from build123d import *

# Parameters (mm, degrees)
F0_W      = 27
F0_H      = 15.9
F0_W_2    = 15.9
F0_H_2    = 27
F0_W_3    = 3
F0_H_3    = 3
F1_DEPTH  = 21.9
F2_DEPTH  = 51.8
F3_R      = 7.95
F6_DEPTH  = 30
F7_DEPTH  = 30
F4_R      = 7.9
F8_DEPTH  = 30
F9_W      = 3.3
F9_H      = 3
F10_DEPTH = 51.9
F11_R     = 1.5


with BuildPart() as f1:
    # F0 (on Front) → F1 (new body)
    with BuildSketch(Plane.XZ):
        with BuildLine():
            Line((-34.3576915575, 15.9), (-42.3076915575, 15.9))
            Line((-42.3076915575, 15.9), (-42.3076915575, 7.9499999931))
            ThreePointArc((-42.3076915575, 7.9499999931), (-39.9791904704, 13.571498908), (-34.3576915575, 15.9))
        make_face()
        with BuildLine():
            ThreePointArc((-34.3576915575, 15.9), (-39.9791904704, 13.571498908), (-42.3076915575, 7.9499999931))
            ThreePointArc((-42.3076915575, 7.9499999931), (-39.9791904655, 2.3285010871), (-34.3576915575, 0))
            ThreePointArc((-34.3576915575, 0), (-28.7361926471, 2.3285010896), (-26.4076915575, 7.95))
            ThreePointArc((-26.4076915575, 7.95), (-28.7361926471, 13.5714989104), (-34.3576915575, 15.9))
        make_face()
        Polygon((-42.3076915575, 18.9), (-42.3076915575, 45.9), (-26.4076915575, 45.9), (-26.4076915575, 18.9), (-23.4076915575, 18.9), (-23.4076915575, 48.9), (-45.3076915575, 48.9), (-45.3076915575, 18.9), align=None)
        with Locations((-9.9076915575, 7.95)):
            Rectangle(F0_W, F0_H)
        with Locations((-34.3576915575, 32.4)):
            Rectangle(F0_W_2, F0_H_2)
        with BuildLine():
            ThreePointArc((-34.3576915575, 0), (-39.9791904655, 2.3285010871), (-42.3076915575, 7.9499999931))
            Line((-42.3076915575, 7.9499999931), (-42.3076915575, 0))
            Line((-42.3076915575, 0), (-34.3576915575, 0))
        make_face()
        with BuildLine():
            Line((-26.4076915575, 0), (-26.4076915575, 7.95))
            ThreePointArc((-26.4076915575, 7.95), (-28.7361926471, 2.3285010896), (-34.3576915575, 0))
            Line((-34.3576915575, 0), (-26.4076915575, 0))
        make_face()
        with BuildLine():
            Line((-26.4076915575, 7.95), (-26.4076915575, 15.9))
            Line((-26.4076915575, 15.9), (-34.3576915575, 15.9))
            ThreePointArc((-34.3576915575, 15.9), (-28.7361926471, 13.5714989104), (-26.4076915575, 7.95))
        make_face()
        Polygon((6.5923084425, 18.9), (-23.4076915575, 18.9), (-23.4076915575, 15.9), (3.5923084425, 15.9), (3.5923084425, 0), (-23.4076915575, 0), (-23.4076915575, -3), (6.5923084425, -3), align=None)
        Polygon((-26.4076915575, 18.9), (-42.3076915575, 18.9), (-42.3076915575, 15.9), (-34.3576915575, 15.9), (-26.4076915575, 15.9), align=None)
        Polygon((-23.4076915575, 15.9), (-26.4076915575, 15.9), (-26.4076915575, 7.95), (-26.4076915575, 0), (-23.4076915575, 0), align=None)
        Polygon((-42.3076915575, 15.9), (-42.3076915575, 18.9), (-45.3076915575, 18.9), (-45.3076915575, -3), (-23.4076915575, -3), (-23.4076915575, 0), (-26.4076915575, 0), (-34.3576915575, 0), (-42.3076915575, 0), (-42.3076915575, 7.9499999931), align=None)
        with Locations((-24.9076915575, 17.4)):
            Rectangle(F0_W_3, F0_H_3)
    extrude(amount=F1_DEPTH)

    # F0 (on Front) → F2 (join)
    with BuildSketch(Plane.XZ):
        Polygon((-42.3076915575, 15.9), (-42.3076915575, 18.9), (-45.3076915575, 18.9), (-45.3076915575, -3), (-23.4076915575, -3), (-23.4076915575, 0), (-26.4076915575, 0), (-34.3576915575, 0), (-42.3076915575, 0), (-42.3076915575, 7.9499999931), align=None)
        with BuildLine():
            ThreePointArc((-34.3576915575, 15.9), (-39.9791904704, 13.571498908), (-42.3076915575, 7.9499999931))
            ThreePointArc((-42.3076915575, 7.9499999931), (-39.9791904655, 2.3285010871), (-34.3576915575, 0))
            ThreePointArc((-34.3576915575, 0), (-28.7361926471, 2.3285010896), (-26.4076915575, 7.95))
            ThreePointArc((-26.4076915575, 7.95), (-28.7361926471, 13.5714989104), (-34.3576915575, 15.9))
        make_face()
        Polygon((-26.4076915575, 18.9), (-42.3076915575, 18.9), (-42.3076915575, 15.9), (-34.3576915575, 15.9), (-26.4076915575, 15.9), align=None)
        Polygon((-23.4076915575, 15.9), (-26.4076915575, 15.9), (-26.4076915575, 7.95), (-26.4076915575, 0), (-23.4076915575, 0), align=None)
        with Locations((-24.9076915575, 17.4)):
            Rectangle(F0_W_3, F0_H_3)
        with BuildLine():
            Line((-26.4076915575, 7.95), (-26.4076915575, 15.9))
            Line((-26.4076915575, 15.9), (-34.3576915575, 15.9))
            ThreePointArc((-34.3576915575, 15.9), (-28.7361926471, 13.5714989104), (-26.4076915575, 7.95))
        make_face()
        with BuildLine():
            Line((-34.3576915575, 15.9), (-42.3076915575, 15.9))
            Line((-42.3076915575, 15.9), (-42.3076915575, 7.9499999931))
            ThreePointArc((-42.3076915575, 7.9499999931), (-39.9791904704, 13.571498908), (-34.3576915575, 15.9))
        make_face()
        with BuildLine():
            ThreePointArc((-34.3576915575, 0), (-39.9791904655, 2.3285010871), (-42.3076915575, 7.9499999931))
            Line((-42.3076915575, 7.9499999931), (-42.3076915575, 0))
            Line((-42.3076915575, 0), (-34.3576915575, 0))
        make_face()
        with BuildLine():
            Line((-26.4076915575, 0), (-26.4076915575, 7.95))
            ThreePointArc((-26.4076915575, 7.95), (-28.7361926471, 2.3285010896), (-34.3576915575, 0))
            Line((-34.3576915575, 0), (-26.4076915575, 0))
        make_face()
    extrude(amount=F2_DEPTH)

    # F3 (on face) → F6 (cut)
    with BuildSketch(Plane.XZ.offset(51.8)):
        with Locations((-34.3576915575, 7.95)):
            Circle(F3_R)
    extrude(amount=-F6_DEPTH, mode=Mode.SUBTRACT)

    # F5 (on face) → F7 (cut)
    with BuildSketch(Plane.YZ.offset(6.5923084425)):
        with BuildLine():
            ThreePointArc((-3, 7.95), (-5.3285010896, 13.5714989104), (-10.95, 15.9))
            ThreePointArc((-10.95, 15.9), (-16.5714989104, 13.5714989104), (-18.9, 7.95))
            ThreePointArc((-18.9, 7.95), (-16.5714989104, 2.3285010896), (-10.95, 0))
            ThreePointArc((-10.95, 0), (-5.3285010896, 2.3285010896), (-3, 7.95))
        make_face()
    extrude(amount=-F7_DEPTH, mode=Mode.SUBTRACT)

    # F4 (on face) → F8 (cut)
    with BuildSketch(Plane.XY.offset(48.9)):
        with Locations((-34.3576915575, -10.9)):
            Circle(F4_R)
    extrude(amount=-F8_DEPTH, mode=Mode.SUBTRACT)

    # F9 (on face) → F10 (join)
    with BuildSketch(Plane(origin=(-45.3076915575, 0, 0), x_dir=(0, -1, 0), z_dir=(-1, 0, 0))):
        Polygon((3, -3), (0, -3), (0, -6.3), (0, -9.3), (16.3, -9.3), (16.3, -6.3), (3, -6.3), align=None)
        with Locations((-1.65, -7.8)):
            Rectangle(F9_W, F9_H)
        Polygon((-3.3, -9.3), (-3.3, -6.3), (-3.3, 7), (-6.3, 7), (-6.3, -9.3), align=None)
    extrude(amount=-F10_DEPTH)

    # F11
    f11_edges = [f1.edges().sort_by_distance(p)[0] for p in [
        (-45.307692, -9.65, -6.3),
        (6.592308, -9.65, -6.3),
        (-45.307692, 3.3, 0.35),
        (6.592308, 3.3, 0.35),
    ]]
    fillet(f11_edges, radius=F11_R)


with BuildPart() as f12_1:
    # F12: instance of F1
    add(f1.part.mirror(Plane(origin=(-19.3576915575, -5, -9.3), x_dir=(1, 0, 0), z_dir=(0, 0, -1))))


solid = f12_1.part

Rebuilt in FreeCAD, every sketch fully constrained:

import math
import FreeCAD as App
import Part
import Sketcher

V = App.Vector
Q = App.Units.Quantity


def edges_at(feature, points):
    """Names of the edges that pass closest to the given points."""
    edges = feature.Shape.Edges
    near = lambda p: min(range(len(edges)), key=lambda i: edges[i].distToShape(Part.Vertex(*p))[0])
    return sorted({f"Edge{near(p) + 1}" for p in points})

doc = App.newDocument("Part")
body = doc.addObject("PartDesign::Body", "Body")

sketch1 = body.newObject("Sketcher::SketchObject", "Sketch")
sketch1.AttachmentSupport = (doc.getObject("XZ_Plane"), [""])
sketch1.MapMode = "FlatFace"
sketch1.addGeometry([
    Part.LineSegment(V(7, 19, 0), V(-23, 19, 0)),
    Part.LineSegment(V(-23, 19, 0), V(-23, 49, 0)),
    Part.LineSegment(V(-23, 49, 0), V(-45, 49, 0)),
    Part.LineSegment(V(-45, 49, 0), V(-45, -3, 0)),
    Part.LineSegment(V(-45, -3, 0), V(7, -3, 0)),
    Part.LineSegment(V(7, -3, 0), V(7, 19, 0)),
], False)
sketch1.addConstraint([
    Sketcher.Constraint("Coincident", 0, 2, 1, 1),
    Sketcher.Constraint("Coincident", 1, 2, 2, 1),
    Sketcher.Constraint("Coincident", 2, 2, 3, 1),
    Sketcher.Constraint("Coincident", 3, 2, 4, 1),
    Sketcher.Constraint("Coincident", 4, 2, 5, 1),
    Sketcher.Constraint("Coincident", 5, 2, 0, 1),
    Sketcher.Constraint("Horizontal", 0),
    Sketcher.Constraint("Vertical", 1),
    Sketcher.Constraint("Horizontal", 2),
    Sketcher.Constraint("Vertical", 3),
    Sketcher.Constraint("Horizontal", 4),
    Sketcher.Constraint("Vertical", 5),
    Sketcher.Constraint("Equal", 0, 1),
    Sketcher.Constraint("Equal", 4, 3),
    Sketcher.Constraint("DistanceX", 0, 2, 0, 1, Q("30 mm")),
    Sketcher.Constraint("DistanceX", 2, 2, 2, 1, Q("21.9 mm")),
    Sketcher.Constraint("DistanceY", 3, 2, -1, 1, Q("3 mm")),
    Sketcher.Constraint("DistanceX", 0, 2, -1, 1, Q("23.407692 mm")),
])
pad1 = body.newObject("PartDesign::Pad", "Pad")
pad1.Profile = sketch1
pad1.Length = 21.9

sketch2 = body.newObject("Sketcher::SketchObject", "Sketch001")
sketch2.AttachmentSupport = (doc.getObject("XZ_Plane"), [""])
sketch2.MapMode = "FlatFace"
sketch2.addGeometry([
    Part.LineSegment(V(-23, -3, 0), V(-23, 19, 0)),
    Part.LineSegment(V(-23, 19, 0), V(-45, 19, 0)),
    Part.LineSegment(V(-45, 19, 0), V(-45, -3, 0)),
    Part.LineSegment(V(-45, -3, 0), V(-23, -3, 0)),
], False)
sketch2.addConstraint([
    Sketcher.Constraint("Coincident", 0, 2, 1, 1),
    Sketcher.Constraint("Coincident", 1, 2, 2, 1),
    Sketcher.Constraint("Coincident", 2, 2, 3, 1),
    Sketcher.Constraint("Coincident", 3, 2, 0, 1),
    Sketcher.Constraint("Vertical", 0),
    Sketcher.Constraint("Horizontal", 1),
    Sketcher.Constraint("Vertical", 2),
    Sketcher.Constraint("Horizontal", 3),
    Sketcher.Constraint("Equal", 3, 0),
    Sketcher.Constraint("DistanceX", 1, 2, 1, 1, Q("21.9 mm")),
    Sketcher.Constraint("DistanceY", 2, 2, -1, 1, Q("3 mm")),
    Sketcher.Constraint("DistanceX", 0, 2, -1, 1, Q("23.407692 mm")),
])
pad2 = body.newObject("PartDesign::Pad", "Pad001")
pad2.Profile = sketch2
pad2.Length = 51.8

sketch3 = body.newObject("Sketcher::SketchObject", "Sketch002")
sketch3.AttachmentSupport = (doc.getObject("XZ_Plane"), [""])
sketch3.MapMode = "FlatFace"
sketch3.AttachmentOffset = App.Placement(V(0, 0, 51.8), App.Rotation())
sketch3.addGeometry(Part.Circle(V(-34, 8, 0), V(0, 0, 1), 8), False)
sketch3.addConstraint([
    Sketcher.Constraint("Diameter", 0, Q("15.9 mm")),
    Sketcher.Constraint("DistanceY", -1, 1, 0, 3, Q("7.95 mm")),
    Sketcher.Constraint("DistanceX", 0, 3, -1, 1, Q("34.357692 mm")),
])
pocket1 = body.newObject("PartDesign::Pocket", "Pocket")
pocket1.Profile = sketch3
pocket1.Length = 30

sketch4 = body.newObject("Sketcher::SketchObject", "Sketch003")
sketch4.AttachmentSupport = (doc.getObject("YZ_Plane"), [""])
sketch4.MapMode = "FlatFace"
sketch4.AttachmentOffset = App.Placement(V(0, 0, 6.592308), App.Rotation())
sketch4.addGeometry([
    Part.ArcOfCircle(Part.Circle(V(-11, 8, 0), V(0, 0, 1), 8), math.radians(0), math.radians(90)),
    Part.ArcOfCircle(Part.Circle(V(-11, 8, 0), V(0, 0, 1), 8), math.radians(90), math.radians(180)),
    Part.ArcOfCircle(Part.Circle(V(-11, 8, 0), V(0, 0, 1), 8), math.radians(180), math.radians(270)),
    Part.ArcOfCircle(Part.Circle(V(-11, 8, 0), V(0, 0, 1), 8), math.radians(-90), math.radians(0)),
], False)
sketch4.addConstraint([
    Sketcher.Constraint("Tangent", 0, 2, 1, 1),
    Sketcher.Constraint("Tangent", 1, 2, 2, 1),
    Sketcher.Constraint("Tangent", 2, 2, 3, 1),
    Sketcher.Constraint("Tangent", 3, 2, 0, 1),
    Sketcher.Constraint("Equal", 0, 1),
    Sketcher.Constraint("PointOnObject", 2, 2, -1),
    Sketcher.Constraint("Horizontal", 3, 3, 1, 2),
    Sketcher.Constraint("Horizontal", 1, 2, 3, 2),
    Sketcher.Constraint("Vertical", 3, 3, 0, 2),
    Sketcher.Constraint("Vertical", 0, 2, 2, 2),
    Sketcher.Constraint("Radius", 0, Q("7.95 mm")),
    Sketcher.Constraint("DistanceX", 3, 2, -1, 1, Q("3 mm")),
])
pocket2 = body.newObject("PartDesign::Pocket", "Pocket001")
pocket2.Profile = sketch4
pocket2.Length = 30

sketch5 = body.newObject("Sketcher::SketchObject", "Sketch004")
sketch5.AttachmentSupport = (doc.getObject("XY_Plane"), [""])
sketch5.MapMode = "FlatFace"
sketch5.AttachmentOffset = App.Placement(V(0, 0, 48.9), App.Rotation())
sketch5.addGeometry(Part.Circle(V(-34, -11, 0), V(0, 0, 1), 8), False)
sketch5.addConstraint([
    Sketcher.Constraint("Diameter", 0, Q("15.8 mm")),
    Sketcher.Constraint("DistanceY", 0, 3, -1, 1, Q("10.9 mm")),
    Sketcher.Constraint("DistanceX", 0, 3, -1, 1, Q("34.357692 mm")),
])
pocket3 = body.newObject("PartDesign::Pocket", "Pocket002")
pocket3.Profile = sketch5
pocket3.Length = 30

sketch6 = body.newObject("Sketcher::SketchObject", "Sketch005")
sketch6.AttachmentSupport = (doc.getObject("YZ_Plane"), [""])
sketch6.MapMode = "FlatFace"
sketch6.AttachmentOffset = App.Placement(V(0, 0, -45.307692), App.Rotation())
sketch6.addGeometry([
    Part.LineSegment(V(-3, -3, 0), V(0, -3, 0)),
    Part.LineSegment(V(0, -3, 0), V(0, -6.3, 0)),
    Part.LineSegment(V(0, -6.3, 0), V(3.3, -6.3, 0)),
    Part.LineSegment(V(3.3, -6.3, 0), V(3.3, 7, 0)),
    Part.LineSegment(V(3.3, 7, 0), V(6.3, 7, 0)),
    Part.LineSegment(V(6.3, 7, 0), V(6.3, -9.3, 0)),
    Part.LineSegment(V(6.3, -9.3, 0), V(-16.3, -9.3, 0)),
    Part.LineSegment(V(-16.3, -9.3, 0), V(-16.3, -6.3, 0)),
    Part.LineSegment(V(-16.3, -6.3, 0), V(-3, -6.3, 0)),
    Part.LineSegment(V(-3, -6.3, 0), V(-3, -3, 0)),
], False)
sketch6.addConstraint([
    Sketcher.Constraint("Coincident", 0, 2, 1, 1),
    Sketcher.Constraint("Coincident", 1, 2, 2, 1),
    Sketcher.Constraint("Coincident", 2, 2, 3, 1),
    Sketcher.Constraint("Coincident", 3, 2, 4, 1),
    Sketcher.Constraint("Coincident", 4, 2, 5, 1),
    Sketcher.Constraint("Coincident", 5, 2, 6, 1),
    Sketcher.Constraint("Coincident", 6, 2, 7, 1),
    Sketcher.Constraint("Coincident", 7, 2, 8, 1),
    Sketcher.Constraint("Coincident", 8, 2, 9, 1),
    Sketcher.Constraint("Coincident", 9, 2, 0, 1),
    Sketcher.Constraint("Horizontal", 0),
    Sketcher.Constraint("Vertical", 1),
    Sketcher.Constraint("Horizontal", 2),
    Sketcher.Constraint("Vertical", 3),
    Sketcher.Constraint("Horizontal", 4),
    Sketcher.Constraint("Vertical", 5),
    Sketcher.Constraint("Horizontal", 6),
    Sketcher.Constraint("Vertical", 7),
    Sketcher.Constraint("Horizontal", 8),
    Sketcher.Constraint("Vertical", 9),
    Sketcher.Constraint("PointOnObject", 0, 2, -2),
    Sketcher.Constraint("Horizontal", 2, 2, 7, 2),
    Sketcher.Constraint("Equal", 0, 4),
    Sketcher.Constraint("Equal", 2, 1),
    Sketcher.Constraint("Equal", 8, 3),
    Sketcher.Constraint("Equal", 4, 7),
    Sketcher.Constraint("DistanceX", 0, 1, 0, 2, Q("3 mm")),
    Sketcher.Constraint("DistanceX", 2, 1, 2, 2, Q("3.3 mm")),
    Sketcher.Constraint("DistanceX", 6, 2, 6, 1, Q("22.6 mm")),
    Sketcher.Constraint("DistanceY", 0, 2, -1, 1, Q("3 mm")),
])
pad3 = body.newObject("PartDesign::Pad", "Pad002")
pad3.Profile = sketch6
pad3.Length = 51.9
doc.recompute()

fillet = body.newObject("PartDesign::Fillet", "Fillet")
fillet.Base = (pad3, edges_at(pad3, [
    (-45.308, -9.65, -6.3),
    (6.592, -9.65, -6.3),
    (-45.308, 3.3, 0.35),
    (6.592, 3.3, 0.35),
]))
fillet.Radius = 1.5
body2 = doc.addObject("PartDesign::Body", "Body001")
doc.recompute()

mirroring = doc.addObject("Part::Mirroring", "Mirroring")
mirroring.Source = body
mirroring.Base = V(-19.357692, -5, -9.3)
mirroring.Normal = V(0, 0, -1)
body2.BaseFeature = mirroring
doc.recompute()
body.Visibility = False
mirroring.Visibility = False

doc.recompute()
